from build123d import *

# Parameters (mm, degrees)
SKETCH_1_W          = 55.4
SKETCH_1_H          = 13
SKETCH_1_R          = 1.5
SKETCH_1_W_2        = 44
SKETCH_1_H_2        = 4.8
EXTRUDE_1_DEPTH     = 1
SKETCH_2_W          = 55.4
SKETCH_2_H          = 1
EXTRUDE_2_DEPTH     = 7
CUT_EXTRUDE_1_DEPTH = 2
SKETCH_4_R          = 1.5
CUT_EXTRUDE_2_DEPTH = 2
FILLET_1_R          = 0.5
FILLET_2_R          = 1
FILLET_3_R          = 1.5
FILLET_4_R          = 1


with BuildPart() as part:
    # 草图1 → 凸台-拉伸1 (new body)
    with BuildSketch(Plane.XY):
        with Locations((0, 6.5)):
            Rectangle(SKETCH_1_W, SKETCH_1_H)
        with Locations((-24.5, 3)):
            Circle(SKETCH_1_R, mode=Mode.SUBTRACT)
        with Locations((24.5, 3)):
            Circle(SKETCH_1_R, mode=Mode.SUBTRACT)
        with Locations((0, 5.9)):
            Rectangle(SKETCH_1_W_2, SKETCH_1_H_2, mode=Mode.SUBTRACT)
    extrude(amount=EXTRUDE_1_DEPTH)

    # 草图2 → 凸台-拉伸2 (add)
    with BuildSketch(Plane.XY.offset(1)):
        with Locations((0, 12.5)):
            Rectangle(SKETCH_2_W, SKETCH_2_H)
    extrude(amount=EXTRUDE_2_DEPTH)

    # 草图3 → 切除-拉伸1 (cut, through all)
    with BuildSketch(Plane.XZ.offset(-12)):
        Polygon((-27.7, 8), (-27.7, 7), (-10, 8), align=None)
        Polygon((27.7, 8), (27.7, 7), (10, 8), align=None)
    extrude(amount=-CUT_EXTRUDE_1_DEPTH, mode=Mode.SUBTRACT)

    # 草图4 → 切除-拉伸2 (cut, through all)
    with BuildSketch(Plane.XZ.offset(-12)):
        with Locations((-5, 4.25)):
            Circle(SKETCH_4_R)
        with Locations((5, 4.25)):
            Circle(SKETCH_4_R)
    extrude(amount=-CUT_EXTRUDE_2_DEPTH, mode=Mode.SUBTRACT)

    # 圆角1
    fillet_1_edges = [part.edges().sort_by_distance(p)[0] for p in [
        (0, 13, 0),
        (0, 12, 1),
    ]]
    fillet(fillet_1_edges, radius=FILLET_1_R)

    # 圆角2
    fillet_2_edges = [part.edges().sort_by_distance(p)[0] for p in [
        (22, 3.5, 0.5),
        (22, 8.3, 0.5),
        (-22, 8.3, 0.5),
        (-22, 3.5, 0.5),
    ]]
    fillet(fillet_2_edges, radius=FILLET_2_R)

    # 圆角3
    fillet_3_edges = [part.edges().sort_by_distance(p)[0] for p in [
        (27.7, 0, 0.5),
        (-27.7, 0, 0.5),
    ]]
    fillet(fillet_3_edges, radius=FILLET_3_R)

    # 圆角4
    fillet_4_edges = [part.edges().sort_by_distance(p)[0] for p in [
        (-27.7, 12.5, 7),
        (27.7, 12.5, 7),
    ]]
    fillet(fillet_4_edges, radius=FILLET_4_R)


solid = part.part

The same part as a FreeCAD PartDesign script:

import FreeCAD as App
import Part
import Sketcher
from FreeCAD import Vector
Q = App.Units.Quantity


def edges_at(feature, points):
    """Names of the edges that pass closest to the given points."""
    edges = feature.Shape.Edges
    near = lambda p: min(range(len(edges)), key=lambda i: edges[i].distToShape(Part.Vertex(*p))[0])
    return sorted({f"Edge{near(p) + 1}" for p in points})

doc = App.newDocument("Part")
body = doc.addObject("PartDesign::Body", "Body")

# Sketch on XY plane
sketch1 = body.newObject("Sketcher::SketchObject", "Sketch")
sketch1.AttachmentSupport = (doc.getObject("XY_Plane"), [""])
sketch1.MapMode = "FlatFace"
sketch1.addGeometry([
    Part.LineSegment(Vector(-27.7, 13, 0), Vector(-27.7, 0, 0)),  # 0
    Part.LineSegment(Vector(-27.7, 0, 0), Vector(27.7, 0, 0)),  # 1
    Part.LineSegment(Vector(27.7, 0, 0), Vector(27.7, 13, 0)),  # 2
    Part.LineSegment(Vector(27.7, 13, 0), Vector(-27.7, 13, 0)),  # 3
    Part.Circle(Vector(-24.5, 3, 0), Vector(0, 0, 1), 1.5),  # 4
    Part.Circle(Vector(24.5, 3, 0), Vector(0, 0, 1), 1.5),  # 5
    Part.LineSegment(Vector(22, 3.5, 0), Vector(-22, 3.5, 0)),  # 6
    Part.LineSegment(Vector(-22, 3.5, 0), Vector(-22, 8.3, 0)),  # 7
    Part.LineSegment(Vector(-22, 8.3, 0), Vector(22, 8.3, 0)),  # 8
    Part.LineSegment(Vector(22, 8.3, 0), Vector(22, 3.5, 0)),  # 9
], False)
sketch1.addConstraint([
    Sketcher.Constraint("Coincident", 0, 2, 1, 1),
    Sketcher.Constraint("Coincident", 1, 2, 2, 1),
    Sketcher.Constraint("Coincident", 2, 2, 3, 1),
    Sketcher.Constraint("Coincident", 3, 2, 0, 1),
    Sketcher.Constraint("Coincident", 6, 2, 7, 1),
    Sketcher.Constraint("Coincident", 7, 2, 8, 1),
    Sketcher.Constraint("Coincident", 8, 2, 9, 1),
    Sketcher.Constraint("Coincident", 9, 2, 6, 1),
    Sketcher.Constraint("Vertical", 0),
    Sketcher.Constraint("Horizontal", 1),
    Sketcher.Constraint("Vertical", 2),
    Sketcher.Constraint("Horizontal", 3),
    Sketcher.Constraint("Horizontal", 6),
    Sketcher.Constraint("Vertical", 7),
    Sketcher.Constraint("Horizontal", 8),
    Sketcher.Constraint("Vertical", 9),
    Sketcher.Constraint("Equal", 4, 5),
    Sketcher.Constraint("Symmetric", 0, 2, 1, 2, -1, 1),
    Sketcher.Constraint("Symmetric", 4, 3, 5, 3, -2),
    Sketcher.Constraint("Diameter", 4, Q("3 mm")),
    Sketcher.Constraint("DistanceX", 6, 2, 6, 1, Q("44 mm")),
    Sketcher.Constraint("DistanceY", 0, 2, 0, 1, Q("13 mm")),
    Sketcher.Constraint("DistanceX", 1, 1, 1, 2, Q("55.4 mm")),
    Sketcher.Constraint("DistanceY", 7, 1, 7, 2, Q("4.8 mm")),
    Sketcher.Constraint("DistanceY", -1, 1, 4, 3, Q("3 mm")),
    Sketcher.Constraint("DistanceX", 6, 2, -1, 1, Q("22 mm")),
    Sketcher.Constraint("DistanceX", 4, 3, 5, 3, Q("49 mm")),
    Sketcher.Constraint("DistanceY", -1, 1, 6, 2, Q("3.5 mm")),
])
pad1 = body.newObject("PartDesign::Pad", "Pad")
pad1.Profile = sketch1
pad1.Length = 1

# Sketch on XY plane
sketch2 = body.newObject("Sketcher::SketchObject", "Sketch001")
sketch2.AttachmentSupport = (doc.getObject("XY_Plane"), [""])
sketch2.MapMode = "FlatFace"
sketch2.AttachmentOffset = App.Placement(Vector(0, 0, 1), App.Rotation())
sketch2.addGeometry([
    Part.LineSegment(Vector(-27.7, 13, 0), Vector(-27.7, 12, 0)),
    Part.LineSegment(Vector(-27.7, 12, 0), Vector(27.7, 12, 0)),
    Part.LineSegment(Vector(27.7, 12, 0), Vector(27.7, 13, 0)),
    Part.LineSegment(Vector(27.7, 13, 0), Vector(-27.7, 13, 0)),
], False)
sketch2.addConstraint([
    Sketcher.Constraint("Coincident", 0, 2, 1, 1),
    Sketcher.Constraint("Coincident", 1, 2, 2, 1),
    Sketcher.Constraint("Coincident", 2, 2, 3, 1),
    Sketcher.Constraint("Coincident", 3, 2, 0, 1),
    Sketcher.Constraint("Vertical", 0),
    Sketcher.Constraint("Horizontal", 1),
    Sketcher.Constraint("Vertical", 2),
    Sketcher.Constraint("Horizontal", 3),
    Sketcher.Constraint("DistanceY", 0, 2, 0, 1, Q("1 mm")),
    Sketcher.Constraint("DistanceX", 1, 1, 1, 2, Q("55.4 mm")),
    Sketcher.Constraint("DistanceY", -1, 1, 0, 2, Q("12 mm")),
    Sketcher.Constraint("DistanceX", 0, 2, -1, 1, Q("27.7 mm")),
])
pad2 = body.newObject("PartDesign::Pad", "Pad001")
pad2.Profile = sketch2
pad2.Length = 7

# Sketch on XZ plane
sketch3 = body.newObject("Sketcher::SketchObject", "Sketch002")
sketch3.AttachmentSupport = (doc.getObject("XZ_Plane"), [""])
sketch3.MapMode = "FlatFace"
sketch3.AttachmentOffset = App.Placement(Vector(0, 0, -12), App.Rotation())
sketch3.addGeometry([
    Part.LineSegment(Vector(-27.7, 8, 0), Vector(-27.7, 7, 0)),  # 0
    Part.LineSegment(Vector(-27.7, 7, 0), Vector(-10, 8, 0)),  # 1
    Part.LineSegment(Vector(-10, 8, 0), Vector(-27.7, 8, 0)),  # 2
    Part.LineSegment(Vector(27.7, 7, 0), Vector(27.7, 8, 0)),  # 3
    Part.LineSegment(Vector(27.7, 8, 0), Vector(10, 8, 0)),  # 4
    Part.LineSegment(Vector(10, 8, 0), Vector(27.7, 7, 0)),  # 5
], False)
sketch3.addConstraint([
    Sketcher.Constraint("Coincident", 0, 2, 1, 1),
    Sketcher.Constraint("Coincident", 1, 2, 2, 1),
    Sketcher.Constraint("Coincident", 2, 2, 0, 1),
    Sketcher.Constraint("Coincident", 3, 2, 4, 1),
    Sketcher.Constraint("Coincident", 4, 2, 5, 1),
    Sketcher.Constraint("Coincident", 5, 2, 3, 1),
    Sketcher.Constraint("Vertical", 0),
    Sketcher.Constraint("Horizontal", 2),
    Sketcher.Constraint("Vertical", 3),
    Sketcher.Constraint("Horizontal", 4),
    Sketcher.Constraint("Symmetric", 2, 2, 3, 2, -2),
    Sketcher.Constraint("Horizontal", 0, 2, 5, 2),
    Sketcher.Constraint("Equal", 2, 4),
    Sketcher.Constraint("DistanceY", 0, 2, 0, 1, Q("1 mm")),
    Sketcher.Constraint("DistanceX", 2, 2, 2, 1, Q("17.7 mm")),
    Sketcher.Constraint("DistanceY", -1, 1, 0, 2, Q("7 mm")),
    Sketcher.Constraint("DistanceX", 1, 2, -1, 1, Q("10 mm")),
])
pocket1 = body.newObject("PartDesign::Pocket", "Pocket")
pocket1.Profile = sketch3
pocket1.Type = "ThroughAll"

# Sketch on XZ plane
sketch4 = body.newObject("Sketcher::SketchObject", "Sketch003")
sketch4.AttachmentSupport = (doc.getObject("XZ_Plane"), [""])
sketch4.MapMode = "FlatFace"
sketch4.AttachmentOffset = App.Placement(Vector(0, 0, -12), App.Rotation())
sketch4.addGeometry([
    Part.Circle(Vector(-5, 4.2, 0), Vector(0, 0, 1), 1.5),
    Part.Circle(Vector(5, 4.2, 0), Vector(0, 0, 1), 1.5),
], False)
sketch4.addConstraint([
    Sketcher.Constraint("Equal", 0, 1),
    Sketcher.Constraint("Symmetric", 0, 3, 1, 3, -2),
    Sketcher.Constraint("Diameter", 0, Q("3 mm")),
    Sketcher.Constraint("DistanceX", 0, 3, -1, 1, Q("5 mm")),
    Sketcher.Constraint("DistanceY", -1, 1, 0, 3, Q("4.25 mm")),
])
pocket2 = body.newObject("PartDesign::Pocket", "Pocket001")
pocket2.Profile = sketch4
pocket2.Type = "ThroughAll"
doc.recompute()

fillet = body.newObject("PartDesign::Fillet", "Fillet")
fillet.Base = (pocket2, edges_at(pocket2, [(0, 13, 0), (0, 12, 1)]))
fillet.Radius = 0.5
doc.recompute()

fillet2 = body.newObject("PartDesign::Fillet", "Fillet001")
fillet2.Base = (fillet, edges_at(fillet, [
    (22, 3.5, 0.5),
    (22, 8.3, 0.5),
    (-22, 8.3, 0.5),
    (-22, 3.5, 0.5),
]))
fillet2.Radius = 1
doc.recompute()

fillet3 = body.newObject("PartDesign::Fillet", "Fillet002")
fillet3.Base = (fillet2, edges_at(fillet2, [(27.7, 0, 0.5), (-27.7, 0, 0.5)]))
fillet3.Radius = 1.5
doc.recompute()

fillet4 = body.newObject("PartDesign::Fillet", "Fillet003")
fillet4.Base = (fillet3, edges_at(fillet3, [(-27.7, 12.5, 7), (27.7, 12.5, 7)]))
fillet4.Radius = 1

doc.recompute()
